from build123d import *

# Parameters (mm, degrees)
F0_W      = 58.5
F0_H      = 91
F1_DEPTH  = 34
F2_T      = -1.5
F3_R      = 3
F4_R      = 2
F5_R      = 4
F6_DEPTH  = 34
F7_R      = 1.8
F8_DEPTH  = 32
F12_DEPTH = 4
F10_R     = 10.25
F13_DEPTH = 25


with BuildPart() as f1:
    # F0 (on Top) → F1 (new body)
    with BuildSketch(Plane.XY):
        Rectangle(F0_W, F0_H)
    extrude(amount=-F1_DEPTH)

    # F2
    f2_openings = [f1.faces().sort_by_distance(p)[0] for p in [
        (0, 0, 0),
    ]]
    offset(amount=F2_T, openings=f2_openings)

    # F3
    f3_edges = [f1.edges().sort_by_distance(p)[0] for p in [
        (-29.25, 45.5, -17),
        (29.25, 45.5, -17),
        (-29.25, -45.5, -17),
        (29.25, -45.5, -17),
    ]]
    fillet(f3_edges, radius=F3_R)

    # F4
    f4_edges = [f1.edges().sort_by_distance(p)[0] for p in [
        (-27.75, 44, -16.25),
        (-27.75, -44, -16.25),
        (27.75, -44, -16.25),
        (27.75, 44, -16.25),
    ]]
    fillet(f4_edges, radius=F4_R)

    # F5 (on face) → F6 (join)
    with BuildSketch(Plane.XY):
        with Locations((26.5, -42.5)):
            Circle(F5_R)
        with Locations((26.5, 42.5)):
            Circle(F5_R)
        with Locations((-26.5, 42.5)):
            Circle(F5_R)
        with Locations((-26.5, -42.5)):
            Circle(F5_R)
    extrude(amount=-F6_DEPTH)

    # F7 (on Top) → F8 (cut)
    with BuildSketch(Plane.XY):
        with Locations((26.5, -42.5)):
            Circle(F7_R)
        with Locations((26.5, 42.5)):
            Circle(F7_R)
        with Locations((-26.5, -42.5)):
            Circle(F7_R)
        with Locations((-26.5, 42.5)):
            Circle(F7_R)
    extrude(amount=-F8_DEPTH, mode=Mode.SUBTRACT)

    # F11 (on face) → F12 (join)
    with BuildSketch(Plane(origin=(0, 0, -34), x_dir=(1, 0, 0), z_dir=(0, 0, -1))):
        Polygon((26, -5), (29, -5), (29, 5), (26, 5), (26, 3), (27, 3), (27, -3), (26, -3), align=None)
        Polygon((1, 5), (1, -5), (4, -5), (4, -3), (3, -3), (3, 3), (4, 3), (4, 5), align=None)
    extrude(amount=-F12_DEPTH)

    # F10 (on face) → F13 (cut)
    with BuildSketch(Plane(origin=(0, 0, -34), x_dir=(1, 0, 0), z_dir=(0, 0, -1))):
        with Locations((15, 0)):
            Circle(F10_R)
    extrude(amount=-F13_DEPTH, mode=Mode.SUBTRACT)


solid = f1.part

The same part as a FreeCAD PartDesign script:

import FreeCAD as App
import Part
import Sketcher

V = App.Vector


def edges_at(feature, points):
    """Names of the edges that pass closest to the given points."""
    edges = feature.Shape.Edges
    near = lambda p: min(range(len(edges)), key=lambda i: edges[i].distToShape(Part.Vertex(*p))[0])
    return sorted({f"Edge{near(p) + 1}" for p in points})


def faces_at(feature, points):
    """Names of the faces that lie closest to the given points."""
    faces = feature.Shape.Faces
    near = lambda p: min(range(len(faces)), key=lambda i: faces[i].distToShape(Part.Vertex(*p))[0])
    return sorted({f"Face{near(p) + 1}" for p in points})

doc = App.newDocument("Part")
body = doc.addObject("PartDesign::Body", "Body")

# Sketch on XY plane
sketch1 = body.newObject("Sketcher::SketchObject", "Sketch")
sketch1.AttachmentSupport = (doc.getObject("XY_Plane"), [""])
sketch1.MapMode = "FlatFace"
sketch1.addGeometry(Part.LineSegment(V(-29, 46, 0), V(-29, -46, 0)), False)
sketch1.addGeometry(Part.LineSegment(V(-29, -46, 0), V(29, -46, 0)), False)
sketch1.addGeometry(Part.LineSegment(V(29, -46, 0), V(29, 46, 0)), False)
sketch1.addGeometry(Part.LineSegment(V(29, 46, 0), V(-29, 46, 0)), False)
sketch1.addConstraint(Sketcher.Constraint("Coincident", 0, 2, 1, 1))
sketch1.addConstraint(Sketcher.Constraint("Coincident", 1, 2, 2, 1))
sketch1.addConstraint(Sketcher.Constraint("Coincident", 2, 2, 3, 1))
sketch1.addConstraint(Sketcher.Constraint("Coincident", 3, 2, 0, 1))
sketch1.addConstraint(Sketcher.Constraint("Vertical", 0))
sketch1.addConstraint(Sketcher.Constraint("Horizontal", 1))
sketch1.addConstraint(Sketcher.Constraint("Vertical", 2))
sketch1.addConstraint(Sketcher.Constraint("Horizontal", 3))
sketch1.addConstraint(Sketcher.Constraint("Symmetric", 0, 2, 2, 2, -1, 1))
sketch1.addConstraint(Sketcher.Constraint("DistanceY", 0, 2, 0, 1, 91.0))
sketch1.addConstraint(Sketcher.Constraint("DistanceX", 1, 1, 1, 2, 58.5))
pad1 = body.newObject("PartDesign::Pad", "Pad")
pad1.Profile = sketch1
pad1.Length = 34
pad1.Reversed = True
doc.recompute()

thickness = body.newObject("PartDesign::Thickness", "Thickness")
thickness.Base = (pad1, faces_at(pad1, [(0, 0, 0)]))
thickness.Value = 1.5
thickness.Reversed = True
thickness.Join = "Arc"
doc.recompute()

fillet = body.newObject("PartDesign::Fillet", "Fillet")
fillet.Base = (thickness, edges_at(thickness, [
    (-29.25, 45.5, -17),
    (29.25, 45.5, -17),
    (-29.25, -45.5, -17),
    (29.25, -45.5, -17),
]))
fillet.Radius = 3
doc.recompute()

fillet2 = body.newObject("PartDesign::Fillet", "Fillet001")
fillet2.Base = (fillet, edges_at(fillet, [
    (-27.75, 44, -16.25),
    (-27.75, -44, -16.25),
    (27.75, -44, -16.25),
    (27.75, 44, -16.25),
]))
fillet2.Radius = 2

# Sketch on XY plane
sketch2 = body.newObject("Sketcher::SketchObject", "Sketch001")
sketch2.AttachmentSupport = (doc.getObject("XY_Plane"), [""])
sketch2.MapMode = "FlatFace"
sketch2.addGeometry(Part.Circle(V(26.5, -42.5, 0), V(0, 0, 1), 4), False)
sketch2.addGeometry(Part.Circle(V(26.5, 42.5, 0), V(0, 0, 1), 4), False)
sketch2.addGeometry(Part.Circle(V(-26.5, 42.5, 0), V(0, 0, 1), 4), False)
sketch2.addGeometry(Part.Circle(V(-26.5, -42.5, 0), V(0, 0, 1), 4), False)
sketch2.addConstraint(Sketcher.Constraint("Equal", 0, 1))
sketch2.addConstraint(Sketcher.Constraint("Equal", 1, 2))
sketch2.addConstraint(Sketcher.Constraint("Equal", 2, 3))
sketch2.addConstraint(Sketcher.Constraint("Symmetric", 0, 3, 2, 3, -1, 1))
sketch2.addConstraint(Sketcher.Constraint("Symmetric", 1, 3, 3, 3, -1, 1))
sketch2.addConstraint(Sketcher.Constraint("Symmetric", 1, 3, 2, 3, -2))
sketch2.addConstraint(Sketcher.Constraint("Diameter", 0, 8.0))
sketch2.addConstraint(Sketcher.Constraint("DistanceY", 0, 3, 1, 3, 85.0))
sketch2.addConstraint(Sketcher.Constraint("DistanceX", 2, 3, 1, 3, 53.0))
pad2 = body.newObject("PartDesign::Pad", "Pad001")
pad2.Profile = sketch2
pad2.Length = 34
pad2.Reversed = True

# Sketch on XY plane
sketch3 = body.newObject("Sketcher::SketchObject", "Sketch002")
sketch3.AttachmentSupport = (doc.getObject("XY_Plane"), [""])
sketch3.MapMode = "FlatFace"
sketch3.addGeometry(Part.Circle(V(26.5, -42.5, 0), V(0, 0, 1), 1.8), False)
sketch3.addGeometry(Part.Circle(V(26.5, 42.5, 0), V(0, 0, 1), 1.8), False)
sketch3.addGeometry(Part.Circle(V(-26.5, -42.5, 0), V(0, 0, 1), 1.8), False)
sketch3.addGeometry(Part.Circle(V(-26.5, 42.5, 0), V(0, 0, 1), 1.8), False)
sketch3.addConstraint(Sketcher.Constraint("Equal", 0, 1))
sketch3.addConstraint(Sketcher.Constraint("Equal", 1, 2))
sketch3.addConstraint(Sketcher.Constraint("Equal", 2, 3))
sketch3.addConstraint(Sketcher.Constraint("Symmetric", 1, 3, 2, 3, -1, 1))
sketch3.addConstraint(Sketcher.Constraint("Symmetric", 0, 3, 3, 3, -1, 1))
sketch3.addConstraint(Sketcher.Constraint("Symmetric", 0, 3, 2, 3, -2))
sketch3.addConstraint(Sketcher.Constraint("Diameter", 0, 3.6))
sketch3.addConstraint(Sketcher.Constraint("DistanceY", 0, 3, 1, 3, 85.0))
sketch3.addConstraint(Sketcher.Constraint("DistanceX", 2, 3, 0, 3, 53.0))
pocket1 = body.newObject("PartDesign::Pocket", "Pocket")
pocket1.Profile = sketch3
pocket1.Length = 32

# Sketch on XY plane
sketch4 = body.newObject("Sketcher::SketchObject", "Sketch003")
sketch4.AttachmentSupport = (doc.getObject("XY_Plane"), [""])
sketch4.MapMode = "FlatFace"
sketch4.AttachmentOffset = App.Placement(V(0, 0, -34), App.Rotation())
sketch4.addGeometry(Part.LineSegment(V(26, 5, 0), V(29, 5, 0)), False)
sketch4.addGeometry(Part.LineSegment(V(29, 5, 0), V(29, -5, 0)), False)
sketch4.addGeometry(Part.LineSegment(V(29, -5, 0), V(26, -5, 0)), False)
sketch4.addGeometry(Part.LineSegment(V(26, -5, 0), V(26, -3, 0)), False)
sketch4.addGeometry(Part.LineSegment(V(26, -3, 0), V(27, -3, 0)), False)
sketch4.addGeometry(Part.LineSegment(V(27, -3, 0), V(27, 3, 0)), False)
sketch4.addGeometry(Part.LineSegment(V(27, 3, 0), V(26, 3, 0)), False)
sketch4.addGeometry(Part.LineSegment(V(26, 3, 0), V(26, 5, 0)), False)
sketch4.addGeometry(Part.LineSegment(V(1, -5, 0), V(1, 5, 0)), False)
sketch4.addGeometry(Part.LineSegment(V(1, 5, 0), V(4, 5, 0)), False)
sketch4.addGeometry(Part.LineSegment(V(4, 5, 0), V(4, 3, 0)), False)
sketch4.addGeometry(Part.LineSegment(V(4, 3, 0), V(3, 3, 0)), False)
sketch4.addGeometry(Part.LineSegment(V(3, 3, 0), V(3, -3, 0)), False)
sketch4.addGeometry(Part.LineSegment(V(3, -3, 0), V(4, -3, 0)), False)
sketch4.addGeometry(Part.LineSegment(V(4, -3, 0), V(4, -5, 0)), False)
sketch4.addGeometry(Part.LineSegment(V(4, -5, 0), V(1, -5, 0)), False)
sketch4.addConstraint(Sketcher.Constraint("Coincident", 0, 2, 1, 1))
sketch4.addConstraint(Sketcher.Constraint("Coincident", 1, 2, 2, 1))
sketch4.addConstraint(Sketcher.Constraint("Coincident", 2, 2, 3, 1))
sketch4.addConstraint(Sketcher.Constraint("Coincident", 3, 2, 4, 1))
sketch4.addConstraint(Sketcher.Constraint("Coincident", 4, 2, 5, 1))
sketch4.addConstraint(Sketcher.Constraint("Coincident", 5, 2, 6, 1))
sketch4.addConstraint(Sketcher.Constraint("Coincident", 6, 2, 7, 1))
sketch4.addConstraint(Sketcher.Constraint("Coincident", 7, 2, 0, 1))
sketch4.addConstraint(Sketcher.Constraint("Coincident", 8, 2, 9, 1))
sketch4.addConstraint(Sketcher.Constraint("Coincident", 9, 2, 10, 1))
sketch4.addConstraint(Sketcher.Constraint("Coincident", 10, 2, 11, 1))
sketch4.addConstraint(Sketcher.Constraint("Coincident", 11, 2, 12, 1))
sketch4.addConstraint(Sketcher.Constraint("Coincident", 12, 2, 13, 1))
sketch4.addConstraint(Sketcher.Constraint("Coincident", 13, 2, 14, 1))
sketch4.addConstraint(Sketcher.Constraint("Coincident", 14, 2, 15, 1))
sketch4.addConstraint(Sketcher.Constraint("Coincident", 15, 2, 8, 1))
sketch4.addConstraint(Sketcher.Constraint("Horizontal", 0))
sketch4.addConstraint(Sketcher.Constraint("Vertical", 1))
sketch4.addConstraint(Sketcher.Constraint("Horizontal", 2))
sketch4.addConstraint(Sketcher.Constraint("Vertical", 3))
sketch4.addConstraint(Sketcher.Constraint("Horizontal", 4))
sketch4.addConstraint(Sketcher.Constraint("Vertical", 5))
sketch4.addConstraint(Sketcher.Constraint("Horizontal", 6))
sketch4.addConstraint(Sketcher.Constraint("Vertical", 7))
sketch4.addConstraint(Sketcher.Constraint("Vertical", 8))
sketch4.addConstraint(Sketcher.Constraint("Horizontal", 9))
sketch4.addConstraint(Sketcher.Constraint("Vertical", 10))
sketch4.addConstraint(Sketcher.Constraint("Horizontal", 11))
sketch4.addConstraint(Sketcher.Constraint("Vertical", 12))
sketch4.addConstraint(Sketcher.Constraint("Horizontal", 13))
sketch4.addConstraint(Sketcher.Constraint("Vertical", 14))
sketch4.addConstraint(Sketcher.Constraint("Horizontal", 15))
sketch4.addConstraint(Sketcher.Constraint("Symmetric", 3, 2, 6, 2, -1))
sketch4.addConstraint(Sketcher.Constraint("Symmetric", 10, 2, 13, 2, -1))
sketch4.addConstraint(Sketcher.Constraint("Horizontal", 7, 2, 8, 2))
sketch4.addConstraint(Sketcher.Constraint("Horizontal", 6, 2, 10, 2))
sketch4.addConstraint(Sketcher.Constraint("Horizontal", 2, 2, 14, 2))
sketch4.addConstraint(Sketcher.Constraint("Equal", 2, 9))
sketch4.addConstraint(Sketcher.Constraint("Equal", 6, 11))
sketch4.addConstraint(Sketcher.Constraint("Equal", 3, 7))
sketch4.addConstraint(Sketcher.Constraint("DistanceX", 0, 1, 0, 2, 3.0))
sketch4.addConstraint(Sketcher.Constraint("DistanceX", 4, 1, 4, 2, 1.0))
sketch4.addConstraint(Sketcher.Constraint("DistanceY", 1, 2, 1, 1, 10.0))
sketch4.addConstraint(Sketcher.Constraint("DistanceY", 3, 1, 3, 2, 2.0))
sketch4.addConstraint(Sketcher.Constraint("DistanceX", -1, 1, 0, 2, 29.0))
sketch4.addConstraint(Sketcher.Constraint("DistanceX", -1, 1, 8, 2, 1.0))
pad3 = body.newObject("PartDesign::Pad", "Pad002")
pad3.Profile = sketch4
pad3.Length = 4

# Sketch on XY plane
sketch5 = body.newObject("Sketcher::SketchObject", "Sketch004")
sketch5.AttachmentSupport = (doc.getObject("XY_Plane"), [""])
sketch5.MapMode = "FlatFace"
sketch5.AttachmentOffset = App.Placement(V(0, 0, -34), App.Rotation())
sketch5.addGeometry(Part.Circle(V(15, 0, 0), V(0, 0, 1), 10), False)
sketch5.addConstraint(Sketcher.Constraint("PointOnObject", 0, 3, -1))
sketch5.addConstraint(Sketcher.Constraint("Diameter", 0, 20.5))
sketch5.addConstraint(Sketcher.Constraint("DistanceX", -1, 1, 0, 3, 15.0))
pocket2 = body.newObject("PartDesign::Pocket", "Pocket001")
pocket2.Profile = sketch5
pocket2.Length = 25
pocket2.Reversed = True

doc.recompute()
